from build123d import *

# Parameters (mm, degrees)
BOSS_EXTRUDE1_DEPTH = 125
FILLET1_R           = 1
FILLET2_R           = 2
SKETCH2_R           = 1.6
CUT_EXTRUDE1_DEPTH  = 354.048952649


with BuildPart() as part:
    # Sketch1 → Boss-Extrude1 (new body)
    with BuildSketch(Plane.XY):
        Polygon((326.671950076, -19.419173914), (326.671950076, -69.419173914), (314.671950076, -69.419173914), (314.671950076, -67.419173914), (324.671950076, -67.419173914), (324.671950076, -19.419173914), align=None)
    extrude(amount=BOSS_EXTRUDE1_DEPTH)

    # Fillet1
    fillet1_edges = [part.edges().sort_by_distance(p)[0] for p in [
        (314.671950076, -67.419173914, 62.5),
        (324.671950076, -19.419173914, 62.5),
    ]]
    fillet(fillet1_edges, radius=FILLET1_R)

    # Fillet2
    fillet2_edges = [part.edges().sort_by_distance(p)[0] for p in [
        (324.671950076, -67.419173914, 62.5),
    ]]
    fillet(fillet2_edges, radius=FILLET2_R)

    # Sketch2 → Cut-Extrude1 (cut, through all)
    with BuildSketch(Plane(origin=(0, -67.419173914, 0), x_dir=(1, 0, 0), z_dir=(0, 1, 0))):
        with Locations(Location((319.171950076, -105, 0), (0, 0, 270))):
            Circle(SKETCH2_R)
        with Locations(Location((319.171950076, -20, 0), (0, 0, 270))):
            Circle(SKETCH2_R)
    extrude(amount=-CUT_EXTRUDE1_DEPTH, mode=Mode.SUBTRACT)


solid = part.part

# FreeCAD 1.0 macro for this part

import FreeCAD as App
import Part
import Sketcher
from FreeCAD import Vector
Q = App.Units.Quantity


def edges_at(feature, points):
    """Names of the edges that pass closest to the given points."""
    edges = feature.Shape.Edges
    near = lambda p: min(range(len(edges)), key=lambda i: edges[i].distToShape(Part.Vertex(*p))[0])
    return sorted({f"Edge{near(p) + 1}" for p in points})

doc = App.newDocument("Part")
params = doc.addObject("Spreadsheet::Sheet", "Params")
for row, (alias, value) in enumerate([
    ("sketch1_width", "2 mm"),
    ("sketch1_width2", "10 mm"),
    ("sketch1_height", "50 mm"),
    ("pad1_length", "125 mm"),
    ("fillet_radius", "1 mm"),
    ("fillet2_radius", "2 mm"),
    ("sketch2_diameter", "3.2 mm"),
], start=1):
    params.set(f"A{row}", alias)
    params.set(f"B{row}", "=" + value)
    params.setAlias(f"B{row}", alias)

body = doc.addObject("PartDesign::Body", "Body")

# Sketch on XY plane
sketch1 = doc.addObject("Sketcher::SketchObject", "Sketch")
body.addObject(sketch1)
sketch1.AttachmentSupport = (doc.XY_Plane, [""])
sketch1.MapMode = "FlatFace"
sketch1.addGeometry([
    Part.LineSegment(Vector(326.67195, -69.419174, 0), Vector(326.67195, -19.419174, 0)),  # 0
    Part.LineSegment(Vector(326.67195, -19.419174, 0), Vector(324.67195, -19.419174, 0)),  # 1
    Part.LineSegment(Vector(324.67195, -19.419174, 0), Vector(324.67195, -67.419174, 0)),  # 2
    Part.LineSegment(Vector(324.67195, -67.419174, 0), Vector(314.67195, -67.419174, 0)),  # 3
    Part.LineSegment(Vector(314.67195, -67.419174, 0), Vector(314.67195, -69.419174, 0)),  # 4
    Part.LineSegment(Vector(314.67195, -69.419174, 0), Vector(326.67195, -69.419174, 0)),  # 5
], False)
sketch1.addConstraint([
    Sketcher.Constraint("Coincident", 0, 2, 1, 1),
    Sketcher.Constraint("Coincident", 1, 2, 2, 1),
    Sketcher.Constraint("Coincident", 2, 2, 3, 1),
    Sketcher.Constraint("Coincident", 3, 2, 4, 1),
    Sketcher.Constraint("Coincident", 4, 2, 5, 1),
    Sketcher.Constraint("Coincident", 5, 2, 0, 1),
    Sketcher.Constraint("Vertical", 0),
    Sketcher.Constraint("Horizontal", 1),
    Sketcher.Constraint("Vertical", 2),
    Sketcher.Constraint("Horizontal", 3),
    Sketcher.Constraint("Vertical", 4),
    Sketcher.Constraint("Horizontal", 5),
    Sketcher.Constraint("Equal", 1, 4),
    Sketcher.Constraint("DistanceX", 1, 2, 1, 1, Q("2 mm")),
    Sketcher.Constraint("DistanceX", 3, 2, 3, 1, Q("10 mm")),
    Sketcher.Constraint("DistanceY", 0, 1, 0, 2, Q("50 mm")),
    Sketcher.Constraint("DistanceX", -1, 1, 0, 2, Q("326.67195 mm")),
    Sketcher.Constraint("DistanceY", 0, 2, -1, 1, Q("19.419174 mm")),
])
sketch1.setExpression("Constraints[13]", "Params.sketch1_width")
sketch1.setExpression("Constraints[14]", "Params.sketch1_width2")
sketch1.setExpression("Constraints[15]", "Params.sketch1_height")
pad1 = doc.addObject("PartDesign::Pad", "Pad")
body.addObject(pad1)
pad1.Profile = sketch1
pad1.setExpression("Length", "Params.pad1_length")
doc.recompute()

fillet = doc.addObject("PartDesign::Fillet", "Fillet")
body.addObject(fillet)
fillet.Base = (pad1, edges_at(pad1, [(314.672, -67.419, 62.5), (324.672, -19.419, 62.5)]))
fillet.setExpression("Radius", "Params.fillet_radius")
doc.recompute()

fillet2 = doc.addObject("PartDesign::Fillet", "Fillet001")
body.addObject(fillet2)
fillet2.Base = (fillet, edges_at(fillet, [(324.672, -67.419, 62.5)]))
fillet2.setExpression("Radius", "Params.fillet2_radius")

# Sketch on XZ plane
sketch2 = doc.addObject("Sketcher::SketchObject", "Sketch001")
body.addObject(sketch2)
sketch2.AttachmentSupport = (doc.XZ_Plane, [""])
sketch2.MapMode = "FlatFace"
sketch2.AttachmentOffset = App.Placement(Vector(0, 0, 67.419174), App.Rotation())
sketch2.addGeometry([
    Part.Circle(Vector(319.17195, 105, 0), Vector(0, 0, 1), 1.6),
    Part.Circle(Vector(319.17195, 20, 0), Vector(0, 0, 1), 1.6),
], False)
sketch2.addConstraint([
    Sketcher.Constraint("Equal", 0, 1),
    Sketcher.Constraint("Vertical", 0, 3, 1, 3),
    Sketcher.Constraint("Diameter", 0, Q("3.2 mm")),
    Sketcher.Constraint("DistanceY", -1, 1, 0, 3, Q("105 mm")),
    Sketcher.Constraint("DistanceY", -1, 1, 1, 3, Q("20 mm")),
    Sketcher.Constraint("DistanceX", -1, 1, 0, 3, Q("319.17195 mm")),
])
sketch2.setExpression("Constraints[2]", "Params.sketch2_diameter")
pocket1 = doc.addObject("PartDesign::Pocket", "Pocket")
body.addObject(pocket1)
pocket1.Profile = sketch2
pocket1.Type = "ThroughAll"
pocket1.Reversed = True

doc.recompute()
